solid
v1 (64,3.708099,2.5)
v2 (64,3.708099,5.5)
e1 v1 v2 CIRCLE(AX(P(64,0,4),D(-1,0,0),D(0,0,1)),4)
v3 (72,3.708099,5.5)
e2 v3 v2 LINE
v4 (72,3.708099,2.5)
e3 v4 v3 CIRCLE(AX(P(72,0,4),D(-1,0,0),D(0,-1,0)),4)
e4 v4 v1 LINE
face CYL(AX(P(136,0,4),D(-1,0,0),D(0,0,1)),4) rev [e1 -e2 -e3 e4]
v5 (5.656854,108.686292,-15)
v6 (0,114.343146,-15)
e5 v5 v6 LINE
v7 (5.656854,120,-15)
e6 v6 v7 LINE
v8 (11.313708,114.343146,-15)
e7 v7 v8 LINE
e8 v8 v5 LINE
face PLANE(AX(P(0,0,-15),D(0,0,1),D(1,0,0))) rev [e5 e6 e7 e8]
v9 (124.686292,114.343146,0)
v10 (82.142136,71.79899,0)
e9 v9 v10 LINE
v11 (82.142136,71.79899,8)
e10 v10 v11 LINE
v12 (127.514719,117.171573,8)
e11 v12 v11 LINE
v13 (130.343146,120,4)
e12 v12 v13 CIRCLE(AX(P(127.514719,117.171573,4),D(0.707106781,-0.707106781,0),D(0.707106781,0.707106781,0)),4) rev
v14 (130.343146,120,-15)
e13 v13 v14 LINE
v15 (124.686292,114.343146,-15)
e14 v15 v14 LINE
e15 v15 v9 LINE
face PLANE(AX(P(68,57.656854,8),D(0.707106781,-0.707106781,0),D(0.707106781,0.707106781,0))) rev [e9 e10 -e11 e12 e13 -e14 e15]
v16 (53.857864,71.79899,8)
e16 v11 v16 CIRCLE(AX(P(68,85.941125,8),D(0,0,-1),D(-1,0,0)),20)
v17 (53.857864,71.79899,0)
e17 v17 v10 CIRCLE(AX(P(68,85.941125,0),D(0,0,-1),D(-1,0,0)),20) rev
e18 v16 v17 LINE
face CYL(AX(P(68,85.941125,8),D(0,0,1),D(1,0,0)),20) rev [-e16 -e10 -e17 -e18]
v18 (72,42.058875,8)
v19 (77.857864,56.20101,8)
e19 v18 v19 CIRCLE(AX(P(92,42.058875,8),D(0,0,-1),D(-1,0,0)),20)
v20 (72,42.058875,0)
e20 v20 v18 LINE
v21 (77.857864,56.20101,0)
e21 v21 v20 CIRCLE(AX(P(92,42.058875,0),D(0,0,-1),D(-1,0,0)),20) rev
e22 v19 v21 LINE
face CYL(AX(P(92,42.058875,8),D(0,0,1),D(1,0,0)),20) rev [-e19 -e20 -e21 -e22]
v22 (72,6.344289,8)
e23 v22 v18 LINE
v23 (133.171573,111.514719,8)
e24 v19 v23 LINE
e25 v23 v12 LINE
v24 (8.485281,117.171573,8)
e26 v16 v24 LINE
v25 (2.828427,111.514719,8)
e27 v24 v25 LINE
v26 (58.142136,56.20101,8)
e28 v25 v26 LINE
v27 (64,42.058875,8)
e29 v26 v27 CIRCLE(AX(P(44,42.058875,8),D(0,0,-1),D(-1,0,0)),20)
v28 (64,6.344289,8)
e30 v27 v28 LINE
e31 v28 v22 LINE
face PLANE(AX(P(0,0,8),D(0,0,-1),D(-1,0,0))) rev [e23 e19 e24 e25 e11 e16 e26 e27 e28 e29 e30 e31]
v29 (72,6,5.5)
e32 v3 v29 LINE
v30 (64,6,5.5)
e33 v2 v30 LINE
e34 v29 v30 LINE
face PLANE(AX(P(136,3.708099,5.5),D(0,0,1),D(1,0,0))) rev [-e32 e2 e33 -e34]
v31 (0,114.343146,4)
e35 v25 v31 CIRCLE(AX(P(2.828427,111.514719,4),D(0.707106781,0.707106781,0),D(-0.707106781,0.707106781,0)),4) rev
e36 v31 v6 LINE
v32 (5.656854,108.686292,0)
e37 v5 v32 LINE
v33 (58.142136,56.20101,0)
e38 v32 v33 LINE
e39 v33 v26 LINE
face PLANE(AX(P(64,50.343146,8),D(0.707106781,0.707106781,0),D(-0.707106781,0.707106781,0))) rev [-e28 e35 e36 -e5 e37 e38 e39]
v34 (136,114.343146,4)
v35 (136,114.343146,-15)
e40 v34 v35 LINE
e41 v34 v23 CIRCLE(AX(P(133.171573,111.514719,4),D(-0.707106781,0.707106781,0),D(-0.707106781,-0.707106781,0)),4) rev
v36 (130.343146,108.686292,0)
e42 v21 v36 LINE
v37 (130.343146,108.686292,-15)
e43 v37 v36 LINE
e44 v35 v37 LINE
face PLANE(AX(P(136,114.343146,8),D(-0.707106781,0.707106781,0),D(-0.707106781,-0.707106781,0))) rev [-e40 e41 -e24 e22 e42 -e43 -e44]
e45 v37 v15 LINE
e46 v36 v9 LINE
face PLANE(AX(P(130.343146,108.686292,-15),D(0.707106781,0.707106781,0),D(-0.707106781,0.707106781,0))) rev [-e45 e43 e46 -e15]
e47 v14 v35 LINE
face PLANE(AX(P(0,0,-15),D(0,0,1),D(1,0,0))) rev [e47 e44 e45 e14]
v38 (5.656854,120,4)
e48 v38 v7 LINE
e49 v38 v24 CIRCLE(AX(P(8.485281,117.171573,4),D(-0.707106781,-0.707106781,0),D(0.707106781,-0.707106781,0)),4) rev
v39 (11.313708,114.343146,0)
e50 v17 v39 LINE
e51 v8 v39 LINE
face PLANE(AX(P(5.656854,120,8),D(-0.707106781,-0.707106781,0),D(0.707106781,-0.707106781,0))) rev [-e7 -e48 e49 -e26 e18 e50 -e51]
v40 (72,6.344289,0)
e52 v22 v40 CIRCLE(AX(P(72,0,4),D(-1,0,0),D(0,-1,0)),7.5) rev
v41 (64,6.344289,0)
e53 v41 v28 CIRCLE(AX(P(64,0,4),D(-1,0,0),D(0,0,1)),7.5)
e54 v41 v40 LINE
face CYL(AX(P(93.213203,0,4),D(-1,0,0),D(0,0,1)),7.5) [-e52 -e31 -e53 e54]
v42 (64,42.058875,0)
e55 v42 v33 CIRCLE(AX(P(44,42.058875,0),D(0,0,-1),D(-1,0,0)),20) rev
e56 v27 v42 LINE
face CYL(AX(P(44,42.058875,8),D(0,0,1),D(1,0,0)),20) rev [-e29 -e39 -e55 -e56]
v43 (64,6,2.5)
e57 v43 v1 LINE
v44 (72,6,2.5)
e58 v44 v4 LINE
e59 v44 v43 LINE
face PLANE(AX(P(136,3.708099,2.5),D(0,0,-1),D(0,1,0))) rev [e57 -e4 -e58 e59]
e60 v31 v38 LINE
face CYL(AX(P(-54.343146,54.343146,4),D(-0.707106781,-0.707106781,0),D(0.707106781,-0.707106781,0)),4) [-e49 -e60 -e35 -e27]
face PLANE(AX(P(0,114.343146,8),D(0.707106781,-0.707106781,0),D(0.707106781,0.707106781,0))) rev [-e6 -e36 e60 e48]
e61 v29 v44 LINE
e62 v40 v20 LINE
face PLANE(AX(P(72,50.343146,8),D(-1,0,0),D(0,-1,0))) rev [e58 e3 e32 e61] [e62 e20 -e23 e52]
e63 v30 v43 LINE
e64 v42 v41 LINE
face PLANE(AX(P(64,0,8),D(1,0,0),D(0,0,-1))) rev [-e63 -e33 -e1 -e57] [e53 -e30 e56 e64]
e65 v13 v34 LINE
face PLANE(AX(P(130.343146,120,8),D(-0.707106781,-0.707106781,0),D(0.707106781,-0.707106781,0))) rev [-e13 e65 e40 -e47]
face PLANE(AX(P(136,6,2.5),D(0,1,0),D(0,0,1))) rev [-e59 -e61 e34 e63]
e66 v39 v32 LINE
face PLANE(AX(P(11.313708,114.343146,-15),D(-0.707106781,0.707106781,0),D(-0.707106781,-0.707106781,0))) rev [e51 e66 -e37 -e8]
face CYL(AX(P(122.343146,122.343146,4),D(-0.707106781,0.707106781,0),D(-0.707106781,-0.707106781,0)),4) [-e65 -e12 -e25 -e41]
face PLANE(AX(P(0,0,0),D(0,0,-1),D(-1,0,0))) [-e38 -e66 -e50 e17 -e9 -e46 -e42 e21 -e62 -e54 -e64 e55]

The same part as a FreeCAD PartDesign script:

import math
import FreeCAD as App
import Part
import Sketcher


def edges_at(feature, points):
    """Names of the edges that pass closest to the given points."""
    edges = feature.Shape.Edges
    near = lambda p: min(range(len(edges)), key=lambda i: edges[i].distToShape(Part.Vertex(*p))[0])
    return sorted({f"Edge{near(p) + 1}" for p in points})

doc = App.newDocument("Part")
body = doc.addObject("PartDesign::Body", "Body")

# Sketch on XY plane
sketch1 = body.newObject("Sketcher::SketchObject", "Sketch")
sketch1.AttachmentSupport = (doc.getObject("XY_Plane"), [""])
sketch1.MapMode = "FlatFace"
sketch1.addGeometry([
    Part.LineSegment(App.Vector(64, 50, 0), App.Vector(64, 0, 0)),  # 0
    Part.LineSegment(App.Vector(64, 0, 0), App.Vector(72, 0, 0)),  # 1
    Part.LineSegment(App.Vector(72, 0, 0), App.Vector(72, 50, 0)),  # 2
    Part.LineSegment(App.Vector(72, 50, 0), App.Vector(136, 114, 0)),  # 3
    Part.LineSegment(App.Vector(136, 114, 0), App.Vector(130, 120, 0)),  # 4
    Part.LineSegment(App.Vector(130, 120, 0), App.Vector(68, 58, 0)),  # 5
    Part.LineSegment(App.Vector(68, 58, 0), App.Vector(6, 120, 0)),  # 6
    Part.LineSegment(App.Vector(6, 120, 0), App.Vector(0, 114, 0)),  # 7
    Part.LineSegment(App.Vector(0, 114, 0), App.Vector(64, 50, 0)),  # 8
], False)
sketch1.addConstraint([
    Sketcher.Constraint("Coincident", 0, 2, 1, 1),
    Sketcher.Constraint("Coincident", 1, 2, 2, 1),
    Sketcher.Constraint("Coincident", 2, 2, 3, 1),
    Sketcher.Constraint("Coincident", 3, 2, 4, 1),
    Sketcher.Constraint("Coincident", 4, 2, 5, 1),
    Sketcher.Constraint("Coincident", 5, 2, 6, 1),
    Sketcher.Constraint("Coincident", 6, 2, 7, 1),
    Sketcher.Constraint("Coincident", 7, 2, 8, 1),
    Sketcher.Constraint("Coincident", 8, 2, 0, 1),
    Sketcher.Constraint("Vertical", 0),
    Sketcher.Constraint("Horizontal", 1),
    Sketcher.Constraint("Vertical", 2),
    Sketcher.Constraint("PointOnObject", 0, 2, -1),
    Sketcher.Constraint("PointOnObject", 7, 2, -2),
    Sketcher.Constraint("Perpendicular", 3, 4),
    Sketcher.Constraint("Perpendicular", 4, 5),
    Sketcher.Constraint("Perpendicular", 5, 6),
    Sketcher.Constraint("Perpendicular", 6, 7),
    Sketcher.Constraint("Perpendicular", 7, 8),
    Sketcher.Constraint("Horizontal", 4, 2, 6, 2),
    Sketcher.Constraint("Horizontal", 3, 2, 7, 2),
    Sketcher.Constraint("Horizontal", 2, 2, 8, 2),
    Sketcher.Constraint("Equal", 5, 6),
    Sketcher.Constraint("DistanceX", 1, 1, 1, 2, 8.0),
    Sketcher.Constraint("Distance", 4, 8.0),
    Sketcher.Constraint("DistanceX", -1, 1, 0, 2, 64.0),
    Sketcher.Constraint("DistanceY", -1, 1, 4, 2, 120.0),
])
pad1 = body.newObject("PartDesign::Pad", "Pad")
pad1.Profile = sketch1
pad1.Length = 8

# Sketch on XY plane
sketch2 = body.newObject("Sketcher::SketchObject", "Sketch001")
sketch2.AttachmentSupport = (doc.getObject("XY_Plane"), [""])
sketch2.MapMode = "FlatFace"
sketch2.addGeometry([
    Part.LineSegment(App.Vector(136, 114, 0), App.Vector(130, 109, 0)),  # 0
    Part.LineSegment(App.Vector(130, 109, 0), App.Vector(125, 114, 0)),  # 1
    Part.LineSegment(App.Vector(125, 114, 0), App.Vector(130, 120, 0)),  # 2
    Part.LineSegment(App.Vector(130, 120, 0), App.Vector(136, 114, 0)),  # 3
    Part.LineSegment(App.Vector(6, 109, 0), App.Vector(0, 114, 0)),  # 4
    Part.LineSegment(App.Vector(0, 114, 0), App.Vector(6, 120, 0)),  # 5
    Part.LineSegment(App.Vector(6, 120, 0), App.Vector(11, 114, 0)),  # 6
    Part.LineSegment(App.Vector(11, 114, 0), App.Vector(6, 109, 0)),  # 7
], False)
sketch2.addConstraint([
    Sketcher.Constraint("Coincident", 0, 2, 1, 1),
    Sketcher.Constraint("Coincident", 1, 2, 2, 1),
    Sketcher.Constraint("Coincident", 2, 2, 3, 1),
    Sketcher.Constraint("Coincident", 3, 2, 0, 1),
    Sketcher.Constraint("Coincident", 4, 2, 5, 1),
    Sketcher.Constraint("Coincident", 5, 2, 6, 1),
    Sketcher.Constraint("Coincident", 6, 2, 7, 1),
    Sketcher.Constraint("Coincident", 7, 2, 4, 1),
    Sketcher.Constraint("PointOnObject", 4, 2, -2),
    Sketcher.Constraint("Perpendicular", 0, 1),
    Sketcher.Constraint("Perpendicular", 1, 2),
    Sketcher.Constraint("Perpendicular", 2, 3),
    Sketcher.Constraint("Parallel", 3, 4),
    Sketcher.Constraint("Perpendicular", 4, 5),
    Sketcher.Constraint("Perpendicular", 5, 6),
    Sketcher.Constraint("Perpendicular", 6, 7),
    Sketcher.Constraint("Horizontal", 1, 2, 3, 2),
    Sketcher.Constraint("Horizontal", 3, 2, 4, 2),
    Sketcher.Constraint("Horizontal", 2, 2, 5, 2),
    Sketcher.Constraint("Horizontal", 4, 2, 6, 2),
    Sketcher.Constraint("Vertical", 0, 2, 2, 2),
    Sketcher.Constraint("Distance", 0, 8.0),
    Sketcher.Constraint("DistanceY", -1, 1, 2, 2, 120.0),
    Sketcher.Constraint("DistanceX", -1, 1, 3, 2, 136.0),
])
pad2 = body.newObject("PartDesign::Pad", "Pad001")
pad2.Profile = sketch2
pad2.Length = 15
pad2.Reversed = True
doc.recompute()

fillet = body.newObject("PartDesign::Fillet", "Fillet")
fillet.Base = (pad2, edges_at(pad2, [(64, 50.343, 4), (68, 57.657, 4), (72, 50.343, 4)]))
fillet.Radius = 20
doc.recompute()

fillet2 = body.newObject("PartDesign::Fillet", "Fillet001")
fillet2.Base = (fillet, edges_at(fillet, [(133.172, 117.172, 8), (2.828, 117.172, 8)]))
fillet2.Radius = 4

# Sketch on YZ plane
sketch3 = body.newObject("Sketcher::SketchObject", "Sketch002")
sketch3.AttachmentSupport = (doc.getObject("YZ_Plane"), [""])
sketch3.MapMode = "FlatFace"
sketch3.AttachmentOffset = App.Placement(App.Vector(0, 0, 64), App.Rotation())
sketch3.addGeometry(Part.Circle(App.Vector(0, 4, 0), App.Vector(0, 0, 1), 8), False)
sketch3.addConstraint([
    Sketcher.Constraint("PointOnObject", 0, 3, -2),
    Sketcher.Constraint("Diameter", 0, 15.0),
    Sketcher.Constraint("DistanceY", -1, 1, 0, 3, 4.0),
])
pad3 = body.newObject("PartDesign::Pad", "Pad002")
pad3.Profile = sketch3
pad3.Length = 8

# Sketch on YZ plane
sketch4 = body.newObject("Sketcher::SketchObject", "Sketch003")
sketch4.AttachmentSupport = (doc.getObject("YZ_Plane"), [""])
sketch4.MapMode = "FlatFace"
sketch4.AttachmentOffset = App.Placement(App.Vector(0, 0, 64), App.Rotation())
sketch4.addGeometry([
    Part.LineSegment(App.Vector(6, 2.5, 0), App.Vector(3.7, 2.5, 0)),
    Part.ArcOfCircle(Part.Circle(App.Vector(0, 4, 0), App.Vector(0, 0, 1), 4), math.radians(22), math.radians(338)),
    Part.LineSegment(App.Vector(3.7, 5.5, 0), App.Vector(6, 5.5, 0)),
    Part.LineSegment(App.Vector(6, 5.5, 0), App.Vector(6, 2.5, 0)),
], False)
sketch4.addConstraint([
    Sketcher.Constraint("Coincident", 0, 2, 1, 2),
    Sketcher.Constraint("Coincident", 1, 1, 2, 1),
    Sketcher.Constraint("Coincident", 2, 2, 3, 1),
    Sketcher.Constraint("Coincident", 3, 2, 0, 1),
    Sketcher.Constraint("Horizontal", 0),
    Sketcher.Constraint("Horizontal", 2),
    Sketcher.Constraint("Vertical", 3),
    Sketcher.Constraint("PointOnObject", 1, 3, -2),
    Sketcher.Constraint("Vertical", 0, 2, 1, 1),
    Sketcher.Constraint("Radius", 1, 4.0),
    Sketcher.Constraint("DistanceY", 3, 2, 3, 1, 3.0),
    Sketcher.Constraint("DistanceY", -1, 1, 1, 3, 4.0),
    Sketcher.Constraint("DistanceX", -1, 1, 2, 2, 6.0),
])
pocket1 = body.newObject("PartDesign::Pocket", "Pocket")
pocket1.Profile = sketch4
pocket1.Type = "ThroughAll"
pocket1.Reversed = True

doc.recompute()
